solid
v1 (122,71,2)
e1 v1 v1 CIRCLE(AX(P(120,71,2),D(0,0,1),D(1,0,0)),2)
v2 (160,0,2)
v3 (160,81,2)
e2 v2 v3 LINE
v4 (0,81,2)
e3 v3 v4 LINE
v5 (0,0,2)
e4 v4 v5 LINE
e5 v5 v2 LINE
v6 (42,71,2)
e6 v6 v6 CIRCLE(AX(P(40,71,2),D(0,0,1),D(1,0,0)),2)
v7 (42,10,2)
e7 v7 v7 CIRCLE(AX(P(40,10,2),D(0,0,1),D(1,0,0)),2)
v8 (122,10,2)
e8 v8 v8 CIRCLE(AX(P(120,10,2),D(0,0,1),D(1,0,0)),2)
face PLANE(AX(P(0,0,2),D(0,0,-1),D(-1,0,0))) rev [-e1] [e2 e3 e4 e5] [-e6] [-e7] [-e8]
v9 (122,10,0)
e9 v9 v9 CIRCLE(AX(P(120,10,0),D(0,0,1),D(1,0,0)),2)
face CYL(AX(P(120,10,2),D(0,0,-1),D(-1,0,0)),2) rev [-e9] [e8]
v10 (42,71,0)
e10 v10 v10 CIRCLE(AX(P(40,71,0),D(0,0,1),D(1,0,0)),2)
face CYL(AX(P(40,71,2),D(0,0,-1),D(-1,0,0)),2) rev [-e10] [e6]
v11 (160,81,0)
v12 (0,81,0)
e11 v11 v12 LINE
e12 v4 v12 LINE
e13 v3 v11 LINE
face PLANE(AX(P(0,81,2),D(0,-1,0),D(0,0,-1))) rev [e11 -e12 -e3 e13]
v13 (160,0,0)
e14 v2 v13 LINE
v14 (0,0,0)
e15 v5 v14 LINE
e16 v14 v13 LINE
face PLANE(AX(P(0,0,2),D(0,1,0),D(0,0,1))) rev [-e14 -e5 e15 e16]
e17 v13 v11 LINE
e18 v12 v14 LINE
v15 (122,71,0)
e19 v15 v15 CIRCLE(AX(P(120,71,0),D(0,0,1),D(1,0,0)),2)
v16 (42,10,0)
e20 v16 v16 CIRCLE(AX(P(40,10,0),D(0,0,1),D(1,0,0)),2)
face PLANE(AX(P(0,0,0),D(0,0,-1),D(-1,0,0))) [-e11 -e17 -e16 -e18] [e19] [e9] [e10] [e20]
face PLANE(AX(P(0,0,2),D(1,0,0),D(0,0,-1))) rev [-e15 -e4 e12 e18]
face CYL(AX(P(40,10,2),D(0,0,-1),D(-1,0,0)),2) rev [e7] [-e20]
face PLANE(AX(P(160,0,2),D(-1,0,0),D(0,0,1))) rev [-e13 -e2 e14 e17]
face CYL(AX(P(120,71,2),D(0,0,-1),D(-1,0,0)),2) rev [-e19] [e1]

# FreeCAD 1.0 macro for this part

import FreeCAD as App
import Part
import Sketcher

V = App.Vector
Q = App.Units.Quantity

doc = App.newDocument("Part")
body = doc.addObject("PartDesign::Body", "Body")

sketch1 = body.newObject("Sketcher::SketchObject", "Sketch")
sketch1.AttachmentSupport = (doc.getObject("XY_Plane"), [""])
sketch1.MapMode = "FlatFace"
sketch1.addGeometry([
    Part.LineSegment(V(0, 81, 0), V(0, 0, 0)),
    Part.LineSegment(V(0, 0, 0), V(160, 0, 0)),
    Part.LineSegment(V(160, 0, 0), V(160, 81, 0)),
    Part.LineSegment(V(160, 81, 0), V(0, 81, 0)),
    Part.Circle(V(40, 10, 0), V(0, 0, 1), 2),
    Part.Circle(V(120, 10, 0), V(0, 0, 1), 2),
    Part.Circle(V(40, 71, 0), V(0, 0, 1), 2),
    Part.Circle(V(120, 71, 0), V(0, 0, 1), 2),
], False)
sketch1.addConstraint([
    Sketcher.Constraint("Coincident", 0, 2, 1, 1),
    Sketcher.Constraint("Coincident", 1, 2, 2, 1),
    Sketcher.Constraint("Coincident", 2, 2, 3, 1),
    Sketcher.Constraint("Coincident", 3, 2, 0, 1),
    Sketcher.Constraint("Vertical", 0),
    Sketcher.Constraint("Horizontal", 1),
    Sketcher.Constraint("Vertical", 2),
    Sketcher.Constraint("Horizontal", 3),
    Sketcher.Constraint("Coincident", 0, 2, -1, 1),
    Sketcher.Constraint("Equal", 4, 5),
    Sketcher.Constraint("Equal", 5, 6),
    Sketcher.Constraint("Equal", 6, 7),
    Sketcher.Constraint("Horizontal", 4, 3, 5, 3),
    Sketcher.Constraint("Horizontal", 6, 3, 7, 3),
    Sketcher.Constraint("Vertical", 4, 3, 6, 3),
    Sketcher.Constraint("Vertical", 5, 3, 7, 3),
    Sketcher.Constraint("Diameter", 4, Q("4 mm")),
    Sketcher.Constraint("DistanceX", 1, 1, 1, 2, Q("160 mm")),
    Sketcher.Constraint("DistanceY", 0, 2, 0, 1, Q("81 mm")),
    Sketcher.Constraint("DistanceX", -1, 1, 4, 3, Q("40 mm")),
    Sketcher.Constraint("DistanceY", -1, 1, 4, 3, Q("10 mm")),
    Sketcher.Constraint("DistanceX", -1, 1, 5, 3, Q("120 mm")),
    Sketcher.Constraint("DistanceY", -1, 1, 6, 3, Q("71 mm")),
])
pad1 = body.newObject("PartDesign::Pad", "Pad")
pad1.Profile = sketch1
pad1.Length = 2

doc.recompute()
